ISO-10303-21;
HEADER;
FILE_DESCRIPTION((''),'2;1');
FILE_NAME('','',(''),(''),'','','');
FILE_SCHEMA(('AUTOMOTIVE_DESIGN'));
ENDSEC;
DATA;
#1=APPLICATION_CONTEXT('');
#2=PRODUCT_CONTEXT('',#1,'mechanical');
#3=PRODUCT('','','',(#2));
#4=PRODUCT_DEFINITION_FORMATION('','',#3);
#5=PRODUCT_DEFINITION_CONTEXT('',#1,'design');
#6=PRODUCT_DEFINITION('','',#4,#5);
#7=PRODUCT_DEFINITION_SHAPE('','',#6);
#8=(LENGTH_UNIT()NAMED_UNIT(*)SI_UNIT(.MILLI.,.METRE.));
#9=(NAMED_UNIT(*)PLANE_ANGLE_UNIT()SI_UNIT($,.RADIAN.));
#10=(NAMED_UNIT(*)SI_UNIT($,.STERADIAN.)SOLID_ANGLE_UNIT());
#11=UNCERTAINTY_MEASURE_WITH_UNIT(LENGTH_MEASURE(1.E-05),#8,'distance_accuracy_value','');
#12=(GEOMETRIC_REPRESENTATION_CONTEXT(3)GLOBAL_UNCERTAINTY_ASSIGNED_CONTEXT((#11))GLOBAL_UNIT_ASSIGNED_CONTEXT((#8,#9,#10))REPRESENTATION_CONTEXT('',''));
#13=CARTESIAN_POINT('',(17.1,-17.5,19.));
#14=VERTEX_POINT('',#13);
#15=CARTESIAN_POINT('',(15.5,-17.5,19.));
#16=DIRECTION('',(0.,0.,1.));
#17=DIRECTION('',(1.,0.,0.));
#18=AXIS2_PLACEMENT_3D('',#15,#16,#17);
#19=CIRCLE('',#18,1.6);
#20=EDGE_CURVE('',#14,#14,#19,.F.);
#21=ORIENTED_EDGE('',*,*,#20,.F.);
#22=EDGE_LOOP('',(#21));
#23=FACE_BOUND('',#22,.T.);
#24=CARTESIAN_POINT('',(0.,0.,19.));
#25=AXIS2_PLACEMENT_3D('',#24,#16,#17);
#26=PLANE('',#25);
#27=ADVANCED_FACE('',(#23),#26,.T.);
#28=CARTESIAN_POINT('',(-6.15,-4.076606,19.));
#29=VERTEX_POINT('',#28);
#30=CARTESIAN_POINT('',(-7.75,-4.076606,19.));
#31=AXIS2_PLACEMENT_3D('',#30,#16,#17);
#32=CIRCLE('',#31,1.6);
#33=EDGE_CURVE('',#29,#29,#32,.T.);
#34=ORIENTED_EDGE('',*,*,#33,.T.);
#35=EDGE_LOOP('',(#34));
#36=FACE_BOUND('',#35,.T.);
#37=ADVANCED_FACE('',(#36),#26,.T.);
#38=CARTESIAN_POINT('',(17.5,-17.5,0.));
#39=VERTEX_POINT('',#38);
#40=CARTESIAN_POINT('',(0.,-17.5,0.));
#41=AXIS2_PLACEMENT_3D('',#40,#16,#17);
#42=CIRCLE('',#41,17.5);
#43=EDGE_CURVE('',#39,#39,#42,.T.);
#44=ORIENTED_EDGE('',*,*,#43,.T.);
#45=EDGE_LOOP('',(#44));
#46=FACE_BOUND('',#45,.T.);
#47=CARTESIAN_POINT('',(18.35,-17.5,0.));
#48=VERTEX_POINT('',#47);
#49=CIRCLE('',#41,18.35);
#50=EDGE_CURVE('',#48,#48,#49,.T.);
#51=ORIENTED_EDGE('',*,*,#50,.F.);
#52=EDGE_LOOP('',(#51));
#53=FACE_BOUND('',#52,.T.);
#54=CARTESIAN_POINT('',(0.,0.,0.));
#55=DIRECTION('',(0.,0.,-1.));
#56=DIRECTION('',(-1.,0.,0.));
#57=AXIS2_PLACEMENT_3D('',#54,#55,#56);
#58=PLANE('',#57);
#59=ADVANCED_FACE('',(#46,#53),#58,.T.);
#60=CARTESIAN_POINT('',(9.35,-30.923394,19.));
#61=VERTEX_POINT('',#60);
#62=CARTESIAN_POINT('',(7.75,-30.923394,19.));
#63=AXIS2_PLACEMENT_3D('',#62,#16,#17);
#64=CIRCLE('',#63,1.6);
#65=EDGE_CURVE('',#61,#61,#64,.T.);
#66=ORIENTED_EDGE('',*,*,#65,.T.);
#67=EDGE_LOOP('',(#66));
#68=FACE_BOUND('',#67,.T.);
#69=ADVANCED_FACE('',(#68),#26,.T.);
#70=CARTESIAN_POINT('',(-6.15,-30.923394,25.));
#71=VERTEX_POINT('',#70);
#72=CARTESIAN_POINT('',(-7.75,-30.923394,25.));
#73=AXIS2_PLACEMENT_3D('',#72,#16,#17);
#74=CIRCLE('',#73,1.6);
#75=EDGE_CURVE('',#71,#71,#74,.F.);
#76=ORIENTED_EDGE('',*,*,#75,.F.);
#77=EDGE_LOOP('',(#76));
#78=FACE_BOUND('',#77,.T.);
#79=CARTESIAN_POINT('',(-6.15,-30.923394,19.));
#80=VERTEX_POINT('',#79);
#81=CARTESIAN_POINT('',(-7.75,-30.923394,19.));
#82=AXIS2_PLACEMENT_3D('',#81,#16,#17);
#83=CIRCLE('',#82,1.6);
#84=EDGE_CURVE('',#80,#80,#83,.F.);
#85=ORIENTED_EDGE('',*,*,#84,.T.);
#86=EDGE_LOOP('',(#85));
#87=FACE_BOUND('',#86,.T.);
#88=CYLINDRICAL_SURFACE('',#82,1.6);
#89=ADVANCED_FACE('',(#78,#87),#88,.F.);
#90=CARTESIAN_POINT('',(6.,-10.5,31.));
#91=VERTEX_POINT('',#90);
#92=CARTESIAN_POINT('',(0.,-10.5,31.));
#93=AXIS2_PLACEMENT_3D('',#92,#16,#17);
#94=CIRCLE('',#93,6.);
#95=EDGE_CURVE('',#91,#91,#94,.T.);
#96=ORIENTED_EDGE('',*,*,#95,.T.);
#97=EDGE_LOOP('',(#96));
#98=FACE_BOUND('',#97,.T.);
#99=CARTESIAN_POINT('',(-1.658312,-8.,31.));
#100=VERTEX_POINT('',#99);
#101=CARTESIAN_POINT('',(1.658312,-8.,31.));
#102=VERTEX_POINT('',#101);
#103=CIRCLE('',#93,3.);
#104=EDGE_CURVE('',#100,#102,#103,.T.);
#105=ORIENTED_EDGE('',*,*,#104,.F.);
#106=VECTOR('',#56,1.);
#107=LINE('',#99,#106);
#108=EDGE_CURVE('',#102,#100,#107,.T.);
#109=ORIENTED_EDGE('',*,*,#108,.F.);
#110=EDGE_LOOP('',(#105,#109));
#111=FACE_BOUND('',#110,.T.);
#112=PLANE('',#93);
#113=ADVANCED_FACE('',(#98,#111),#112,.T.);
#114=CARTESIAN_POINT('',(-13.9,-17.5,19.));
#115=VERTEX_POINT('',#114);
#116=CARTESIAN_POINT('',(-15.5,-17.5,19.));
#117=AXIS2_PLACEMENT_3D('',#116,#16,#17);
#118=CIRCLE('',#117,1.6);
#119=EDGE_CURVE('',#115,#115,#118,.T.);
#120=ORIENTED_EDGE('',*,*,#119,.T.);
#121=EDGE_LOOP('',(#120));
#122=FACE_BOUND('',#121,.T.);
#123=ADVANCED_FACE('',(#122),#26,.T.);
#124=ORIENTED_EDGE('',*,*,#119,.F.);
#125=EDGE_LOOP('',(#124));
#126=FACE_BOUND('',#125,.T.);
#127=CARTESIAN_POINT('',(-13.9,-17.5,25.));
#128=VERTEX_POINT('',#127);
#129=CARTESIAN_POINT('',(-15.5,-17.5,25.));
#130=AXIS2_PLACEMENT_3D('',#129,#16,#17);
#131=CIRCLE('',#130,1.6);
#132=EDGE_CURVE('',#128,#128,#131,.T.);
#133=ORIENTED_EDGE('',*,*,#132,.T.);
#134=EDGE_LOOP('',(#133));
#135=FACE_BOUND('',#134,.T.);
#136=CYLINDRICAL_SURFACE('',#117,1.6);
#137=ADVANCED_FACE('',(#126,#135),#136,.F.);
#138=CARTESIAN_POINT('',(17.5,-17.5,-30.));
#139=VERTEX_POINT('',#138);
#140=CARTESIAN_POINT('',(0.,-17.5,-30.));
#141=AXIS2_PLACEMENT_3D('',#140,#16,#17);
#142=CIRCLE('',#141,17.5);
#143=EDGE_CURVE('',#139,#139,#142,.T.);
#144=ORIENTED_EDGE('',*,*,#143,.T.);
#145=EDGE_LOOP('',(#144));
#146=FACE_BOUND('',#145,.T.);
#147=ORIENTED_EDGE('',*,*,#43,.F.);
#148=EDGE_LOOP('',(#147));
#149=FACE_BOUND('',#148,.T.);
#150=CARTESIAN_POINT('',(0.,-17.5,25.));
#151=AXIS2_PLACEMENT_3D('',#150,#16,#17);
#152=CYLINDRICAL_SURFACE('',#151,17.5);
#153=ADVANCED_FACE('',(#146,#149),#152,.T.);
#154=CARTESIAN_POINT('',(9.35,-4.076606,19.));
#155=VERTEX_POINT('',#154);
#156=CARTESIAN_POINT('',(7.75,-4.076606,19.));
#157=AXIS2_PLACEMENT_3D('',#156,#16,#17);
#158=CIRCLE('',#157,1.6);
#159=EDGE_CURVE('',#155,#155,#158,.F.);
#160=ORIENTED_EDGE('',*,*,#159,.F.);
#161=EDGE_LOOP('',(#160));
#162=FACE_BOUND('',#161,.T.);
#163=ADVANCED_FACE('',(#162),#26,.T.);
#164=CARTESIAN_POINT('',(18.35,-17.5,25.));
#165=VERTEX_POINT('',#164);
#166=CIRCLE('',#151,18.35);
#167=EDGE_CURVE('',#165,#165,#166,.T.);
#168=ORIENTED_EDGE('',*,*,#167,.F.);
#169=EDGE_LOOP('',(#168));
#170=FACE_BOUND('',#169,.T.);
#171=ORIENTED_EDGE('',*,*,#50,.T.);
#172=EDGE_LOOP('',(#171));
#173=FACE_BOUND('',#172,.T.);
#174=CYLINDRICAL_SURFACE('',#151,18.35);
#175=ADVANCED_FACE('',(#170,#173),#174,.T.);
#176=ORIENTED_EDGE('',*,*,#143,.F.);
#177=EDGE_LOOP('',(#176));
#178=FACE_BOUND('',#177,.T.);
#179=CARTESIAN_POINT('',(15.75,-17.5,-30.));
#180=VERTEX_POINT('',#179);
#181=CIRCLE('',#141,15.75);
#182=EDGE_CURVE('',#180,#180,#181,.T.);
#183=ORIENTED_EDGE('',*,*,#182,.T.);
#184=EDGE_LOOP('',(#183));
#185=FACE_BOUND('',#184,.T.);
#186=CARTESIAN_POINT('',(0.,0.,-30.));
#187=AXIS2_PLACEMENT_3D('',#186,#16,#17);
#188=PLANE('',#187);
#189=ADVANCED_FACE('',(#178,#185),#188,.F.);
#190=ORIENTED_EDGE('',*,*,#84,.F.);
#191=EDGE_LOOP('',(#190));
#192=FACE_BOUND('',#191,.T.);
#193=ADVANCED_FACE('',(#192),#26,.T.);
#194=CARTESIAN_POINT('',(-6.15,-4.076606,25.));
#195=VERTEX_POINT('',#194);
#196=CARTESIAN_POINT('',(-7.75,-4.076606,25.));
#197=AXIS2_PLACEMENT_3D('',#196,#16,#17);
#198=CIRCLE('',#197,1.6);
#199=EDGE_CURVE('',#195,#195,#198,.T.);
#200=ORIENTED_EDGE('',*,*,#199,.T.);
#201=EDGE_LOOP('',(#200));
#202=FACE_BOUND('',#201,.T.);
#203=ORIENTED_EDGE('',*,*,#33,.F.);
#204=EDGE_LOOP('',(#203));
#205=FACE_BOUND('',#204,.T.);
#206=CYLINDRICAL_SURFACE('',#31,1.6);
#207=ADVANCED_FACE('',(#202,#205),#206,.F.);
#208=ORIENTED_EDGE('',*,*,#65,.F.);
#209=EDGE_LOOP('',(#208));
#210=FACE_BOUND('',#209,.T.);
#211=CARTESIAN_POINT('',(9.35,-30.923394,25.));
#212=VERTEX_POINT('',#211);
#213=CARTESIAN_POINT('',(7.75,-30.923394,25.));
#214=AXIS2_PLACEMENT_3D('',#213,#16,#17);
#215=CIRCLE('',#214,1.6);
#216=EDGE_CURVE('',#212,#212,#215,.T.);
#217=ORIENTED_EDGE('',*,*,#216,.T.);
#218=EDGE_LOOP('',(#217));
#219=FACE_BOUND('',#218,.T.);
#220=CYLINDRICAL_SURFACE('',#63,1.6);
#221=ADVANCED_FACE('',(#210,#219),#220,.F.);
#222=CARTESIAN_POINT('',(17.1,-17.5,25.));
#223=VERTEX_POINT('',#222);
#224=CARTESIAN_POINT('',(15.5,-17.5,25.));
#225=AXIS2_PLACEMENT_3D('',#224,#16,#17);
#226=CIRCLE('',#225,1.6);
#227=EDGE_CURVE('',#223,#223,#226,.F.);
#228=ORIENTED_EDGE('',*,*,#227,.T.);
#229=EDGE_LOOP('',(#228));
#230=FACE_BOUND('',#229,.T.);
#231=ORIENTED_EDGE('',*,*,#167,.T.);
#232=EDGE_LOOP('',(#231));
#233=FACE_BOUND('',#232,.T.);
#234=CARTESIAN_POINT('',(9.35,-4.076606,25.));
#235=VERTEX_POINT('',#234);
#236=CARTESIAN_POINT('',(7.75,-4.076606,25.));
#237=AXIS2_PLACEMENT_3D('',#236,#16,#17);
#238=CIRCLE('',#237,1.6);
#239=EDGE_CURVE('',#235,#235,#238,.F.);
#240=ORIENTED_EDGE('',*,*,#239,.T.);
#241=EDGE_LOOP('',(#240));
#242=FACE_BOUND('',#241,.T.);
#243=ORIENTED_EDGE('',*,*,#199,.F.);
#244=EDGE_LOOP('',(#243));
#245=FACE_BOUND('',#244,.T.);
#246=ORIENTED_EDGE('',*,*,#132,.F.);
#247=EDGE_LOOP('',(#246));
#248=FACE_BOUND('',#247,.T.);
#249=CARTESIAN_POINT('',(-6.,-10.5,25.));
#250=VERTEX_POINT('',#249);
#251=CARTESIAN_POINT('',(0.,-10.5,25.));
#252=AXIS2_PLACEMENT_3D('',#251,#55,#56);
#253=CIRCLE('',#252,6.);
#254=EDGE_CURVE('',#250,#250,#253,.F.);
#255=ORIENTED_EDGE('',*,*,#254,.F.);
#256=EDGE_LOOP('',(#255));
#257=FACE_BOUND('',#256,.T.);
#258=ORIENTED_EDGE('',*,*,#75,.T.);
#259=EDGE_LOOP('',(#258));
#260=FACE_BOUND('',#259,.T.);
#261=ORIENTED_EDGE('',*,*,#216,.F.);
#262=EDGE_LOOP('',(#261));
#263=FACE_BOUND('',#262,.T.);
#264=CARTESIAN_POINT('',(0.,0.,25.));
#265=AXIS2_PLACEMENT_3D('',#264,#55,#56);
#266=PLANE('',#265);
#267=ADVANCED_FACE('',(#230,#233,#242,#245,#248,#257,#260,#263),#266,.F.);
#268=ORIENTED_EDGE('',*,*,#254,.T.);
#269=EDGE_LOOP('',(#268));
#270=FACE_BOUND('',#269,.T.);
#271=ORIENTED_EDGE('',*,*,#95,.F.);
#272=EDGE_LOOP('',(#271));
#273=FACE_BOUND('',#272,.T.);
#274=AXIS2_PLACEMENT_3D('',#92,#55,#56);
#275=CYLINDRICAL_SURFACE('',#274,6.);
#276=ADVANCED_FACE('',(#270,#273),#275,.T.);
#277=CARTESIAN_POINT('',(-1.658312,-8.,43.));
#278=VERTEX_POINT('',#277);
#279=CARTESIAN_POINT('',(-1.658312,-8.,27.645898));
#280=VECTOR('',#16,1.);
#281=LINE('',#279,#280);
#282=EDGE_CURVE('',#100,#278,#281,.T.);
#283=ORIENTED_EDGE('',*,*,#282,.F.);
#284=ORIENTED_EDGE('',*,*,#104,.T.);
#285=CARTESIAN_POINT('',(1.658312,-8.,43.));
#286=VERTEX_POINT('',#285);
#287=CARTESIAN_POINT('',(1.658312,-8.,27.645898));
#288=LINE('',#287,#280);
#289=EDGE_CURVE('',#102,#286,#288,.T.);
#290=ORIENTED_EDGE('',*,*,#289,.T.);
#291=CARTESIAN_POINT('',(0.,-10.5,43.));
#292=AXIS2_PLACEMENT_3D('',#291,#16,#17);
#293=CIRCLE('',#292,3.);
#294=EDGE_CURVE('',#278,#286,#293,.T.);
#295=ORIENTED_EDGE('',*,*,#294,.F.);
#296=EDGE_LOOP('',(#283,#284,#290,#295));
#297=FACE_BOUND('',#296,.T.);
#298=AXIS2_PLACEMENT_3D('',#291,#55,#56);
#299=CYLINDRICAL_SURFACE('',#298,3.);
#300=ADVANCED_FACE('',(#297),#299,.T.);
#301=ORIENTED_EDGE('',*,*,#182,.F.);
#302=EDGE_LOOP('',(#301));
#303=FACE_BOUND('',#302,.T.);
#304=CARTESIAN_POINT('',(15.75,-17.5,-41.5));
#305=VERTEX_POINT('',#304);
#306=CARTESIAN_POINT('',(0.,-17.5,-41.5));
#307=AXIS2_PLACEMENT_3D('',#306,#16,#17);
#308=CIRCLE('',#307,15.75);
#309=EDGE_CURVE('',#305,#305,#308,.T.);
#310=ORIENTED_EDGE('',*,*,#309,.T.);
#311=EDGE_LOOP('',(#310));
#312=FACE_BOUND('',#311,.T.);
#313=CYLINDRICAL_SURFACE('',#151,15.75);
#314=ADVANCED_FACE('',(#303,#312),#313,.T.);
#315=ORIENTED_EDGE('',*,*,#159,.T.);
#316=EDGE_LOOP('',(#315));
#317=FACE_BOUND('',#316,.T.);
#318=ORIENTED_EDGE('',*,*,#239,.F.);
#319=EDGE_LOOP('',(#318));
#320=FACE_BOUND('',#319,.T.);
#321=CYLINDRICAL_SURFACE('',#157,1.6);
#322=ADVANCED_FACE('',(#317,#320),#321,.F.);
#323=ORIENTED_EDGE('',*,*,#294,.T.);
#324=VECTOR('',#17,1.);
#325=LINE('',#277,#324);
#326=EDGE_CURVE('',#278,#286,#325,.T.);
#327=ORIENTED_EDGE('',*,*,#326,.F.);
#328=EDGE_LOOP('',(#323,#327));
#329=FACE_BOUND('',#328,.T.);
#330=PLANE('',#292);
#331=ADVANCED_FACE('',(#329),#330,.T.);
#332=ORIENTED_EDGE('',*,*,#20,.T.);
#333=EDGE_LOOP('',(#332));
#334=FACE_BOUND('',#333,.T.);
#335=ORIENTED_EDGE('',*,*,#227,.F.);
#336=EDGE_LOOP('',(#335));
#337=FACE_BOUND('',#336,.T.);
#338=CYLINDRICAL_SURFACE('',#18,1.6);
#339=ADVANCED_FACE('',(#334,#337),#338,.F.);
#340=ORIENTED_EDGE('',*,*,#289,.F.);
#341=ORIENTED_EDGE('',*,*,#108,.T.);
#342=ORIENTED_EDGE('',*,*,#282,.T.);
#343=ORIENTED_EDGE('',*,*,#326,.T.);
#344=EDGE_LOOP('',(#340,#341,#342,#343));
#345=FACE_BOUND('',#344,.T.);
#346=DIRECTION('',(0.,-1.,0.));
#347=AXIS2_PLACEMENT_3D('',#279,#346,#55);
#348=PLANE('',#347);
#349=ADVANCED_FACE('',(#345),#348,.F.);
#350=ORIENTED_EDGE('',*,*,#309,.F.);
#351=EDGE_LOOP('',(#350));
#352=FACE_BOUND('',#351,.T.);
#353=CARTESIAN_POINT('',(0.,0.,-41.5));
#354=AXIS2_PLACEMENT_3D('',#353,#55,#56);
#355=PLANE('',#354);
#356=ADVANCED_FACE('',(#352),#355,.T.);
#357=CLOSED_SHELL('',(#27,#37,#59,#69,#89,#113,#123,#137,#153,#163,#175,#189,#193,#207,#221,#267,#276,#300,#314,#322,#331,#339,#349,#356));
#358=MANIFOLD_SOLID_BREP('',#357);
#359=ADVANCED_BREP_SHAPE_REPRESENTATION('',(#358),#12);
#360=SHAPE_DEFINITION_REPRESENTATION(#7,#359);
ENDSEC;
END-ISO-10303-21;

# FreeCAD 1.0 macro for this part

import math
import FreeCAD as App
import Part
import Sketcher
from FreeCAD import Vector
Q = App.Units.Quantity

doc = App.newDocument("Part")
body = doc.addObject("PartDesign::Body", "Body")

sketch1 = body.newObject("Sketcher::SketchObject", "Sketch")
sketch1.AttachmentSupport = (doc.getObject("YZ_Plane"), [""])
sketch1.MapMode = "FlatFace"
sketch1.addGeometry([
    Part.LineSegment(Vector(-33.2, -30, 0), Vector(-33.2, -41.5, 0)),
    Part.LineSegment(Vector(-33.2, -41.5, 0), Vector(-17.5, -41.5, 0)),
    Part.LineSegment(Vector(-17.5, -41.5, 0), Vector(-17.5, 25, 0)),
    Part.LineSegment(Vector(-17.5, 25, 0), Vector(-35.9, 25, 0)),
    Part.LineSegment(Vector(-35.9, 25, 0), Vector(-35.9, 0, 0)),
    Part.LineSegment(Vector(-35.9, 0, 0), Vector(-35, 0, 0)),
    Part.LineSegment(Vector(-35, 0, 0), Vector(-35, -30, 0)),
    Part.LineSegment(Vector(-35, -30, 0), Vector(-33.2, -30, 0)),
], False)
sketch1.addGeometry(Part.LineSegment(Vector(-17.5, 25, 0), Vector(-17.5, -41.5, 0)), True)
sketch1.addConstraint([
    Sketcher.Constraint("Coincident", 0, 2, 1, 1),
    Sketcher.Constraint("Coincident", 1, 2, 2, 1),
    Sketcher.Constraint("Coincident", 2, 2, 3, 1),
    Sketcher.Constraint("Coincident", 3, 2, 4, 1),
    Sketcher.Constraint("Coincident", 4, 2, 5, 1),
    Sketcher.Constraint("Coincident", 5, 2, 6, 1),
    Sketcher.Constraint("Coincident", 6, 2, 7, 1),
    Sketcher.Constraint("Coincident", 7, 2, 0, 1),
    Sketcher.Constraint("Vertical", 0),
    Sketcher.Constraint("Horizontal", 1),
    Sketcher.Constraint("Vertical", 2),
    Sketcher.Constraint("Horizontal", 3),
    Sketcher.Constraint("Vertical", 4),
    Sketcher.Constraint("Horizontal", 5),
    Sketcher.Constraint("Vertical", 6),
    Sketcher.Constraint("Horizontal", 7),
    Sketcher.Constraint("Vertical", 8),
    Sketcher.Constraint("Coincident", 8, 1, 2, 2),
    Sketcher.Constraint("PointOnObject", 4, 2, -1),
    Sketcher.Constraint("Horizontal", 0, 2, 8, 2),
    Sketcher.Constraint("DistanceY", 4, 2, 4, 1, Q("25 mm")),
    Sketcher.Constraint("DistanceY", 6, 2, 6, 1, Q("30 mm")),
    Sketcher.Constraint("DistanceY", 0, 2, 0, 1, Q("11.5 mm")),
    Sketcher.Constraint("DistanceX", 5, 2, -1, 1, Q("35 mm")),
    Sketcher.Constraint("DistanceX", 1, 1, 1, 2, Q("15.75 mm")),
    Sketcher.Constraint("DistanceX", 3, 2, 3, 1, Q("18.35 mm")),
    Sketcher.Constraint("DistanceX", 5, 1, 5, 2, Q("0.85 mm")),
])
revolution = body.newObject("PartDesign::Revolution", "Revolution")
revolution.Profile = sketch1
revolution.ReferenceAxis = (sketch1, ["Axis0"])
revolution.Angle = 360

sketch2 = body.newObject("Sketcher::SketchObject", "Sketch001")
sketch2.AttachmentSupport = (doc.getObject("XY_Plane"), [""])
sketch2.MapMode = "FlatFace"
sketch2.AttachmentOffset = App.Placement(Vector(0, 0, 25), App.Rotation())
sketch2.addGeometry(Part.Circle(Vector(0, -10, 0), Vector(0, 0, 1), 6), False)
sketch2.addConstraint([
    Sketcher.Constraint("PointOnObject", 0, 3, -2),
    Sketcher.Constraint("Diameter", 0, Q("12 mm")),
    Sketcher.Constraint("DistanceY", 0, 3, -1, 1, Q("10.5 mm")),
])
pad1 = body.newObject("PartDesign::Pad", "Pad")
pad1.Profile = sketch2
pad1.Length = 6

sketch3 = body.newObject("Sketcher::SketchObject", "Sketch002")
sketch3.AttachmentSupport = (doc.getObject("XY_Plane"), [""])
sketch3.MapMode = "FlatFace"
sketch3.AttachmentOffset = App.Placement(Vector(0, 0, 31), App.Rotation())
sketch3.addGeometry(Part.Circle(Vector(0, -10.5, 0), Vector(0, 0, 1), 3), False)
sketch3.addConstraint([
    Sketcher.Constraint("PointOnObject", 0, 3, -2),
    Sketcher.Constraint("Diameter", 0, Q("6 mm")),
    Sketcher.Constraint("DistanceY", 0, 3, -1, 1, Q("10.5 mm")),
])
pad2 = body.newObject("PartDesign::Pad", "Pad001")
pad2.Profile = sketch3
pad2.Length = 12

sketch4 = body.newObject("Sketcher::SketchObject", "Sketch003")
sketch4.AttachmentSupport = (doc.getObject("XY_Plane"), [""])
sketch4.MapMode = "FlatFace"
sketch4.AttachmentOffset = App.Placement(Vector(0, 0, 25), App.Rotation())
sketch4.addGeometry([
    Part.Circle(Vector(-15.5, -17.5, 0), Vector(0, 0, 1), 1.6),
    Part.Circle(Vector(15.5, -17.5, 0), Vector(0, 0, 1), 1.6),
    Part.Circle(Vector(-7.8, -4.1, 0), Vector(0, 0, 1), 1.6),
    Part.Circle(Vector(7.8, -4.1, 0), Vector(0, 0, 1), 1.6),
    Part.Circle(Vector(7.8, -30.9, 0), Vector(0, 0, 1), 1.6),
    Part.Circle(Vector(-7.8, -30.9, 0), Vector(0, 0, 1), 1.6),
], False)
sketch4.addConstraint([
    Sketcher.Constraint("Equal", 0, 1),
    Sketcher.Constraint("Equal", 1, 2),
    Sketcher.Constraint("Equal", 2, 3),
    Sketcher.Constraint("Equal", 3, 4),
    Sketcher.Constraint("Equal", 4, 5),
    Sketcher.Constraint("Symmetric", 0, 3, 1, 3, -2),
    Sketcher.Constraint("Symmetric", 2, 3, 3, 3, -2),
    Sketcher.Constraint("Symmetric", 4, 3, 5, 3, -2),
    Sketcher.Constraint("Vertical", 3, 3, 4, 3),
    Sketcher.Constraint("Diameter", 0, Q("3.2 mm")),
    Sketcher.Constraint("DistanceX", 0, 3, 1, 3, Q("31 mm")),
    Sketcher.Constraint("DistanceY", 0, 3, -1, 1, Q("17.5 mm")),
    Sketcher.Constraint("DistanceX", 2, 3, 3, 3, Q("15.5 mm")),
    Sketcher.Constraint("DistanceY", 2, 3, -1, 1, Q("4.076606 mm")),
    Sketcher.Constraint("DistanceY", 4, 3, -1, 1, Q("30.923394 mm")),
])
pocket1 = body.newObject("PartDesign::Pocket", "Pocket")
pocket1.Profile = sketch4
pocket1.Length = 6

sketch5 = body.newObject("Sketcher::SketchObject", "Sketch004")
sketch5.AttachmentSupport = (doc.getObject("XY_Plane"), [""])
sketch5.MapMode = "FlatFace"
sketch5.AttachmentOffset = App.Placement(Vector(0, 0, 43), App.Rotation())
sketch5.addGeometry([
    Part.LineSegment(Vector(-1.7, -8, 0), Vector(1.7, -8, 0)),
    Part.ArcOfCircle(Part.Circle(Vector(0, -10.5, 0), Vector(0, 0, 1), 3), math.radians(56), math.radians(124)),
], False)
sketch5.addConstraint([
    Sketcher.Constraint("Coincident", 0, 1, 1, 2),
    Sketcher.Constraint("Coincident", 1, 1, 0, 2),
    Sketcher.Constraint("Horizontal", 0),
    Sketcher.Constraint("PointOnObject", 1, 3, -2),
    Sketcher.Constraint("Radius", 1, Q("3 mm")),
    Sketcher.Constraint("DistanceY", 0, 1, -1, 1, Q("8 mm")),
    Sketcher.Constraint("DistanceY", 1, 3, -1, 1, Q("10.5 mm")),
])
pocket2 = body.newObject("PartDesign::Pocket", "Pocket001")
pocket2.Profile = sketch5
pocket2.Type = "TwoLengths"
pocket2.Length = 94.606597
pocket2.Length2 = 12
pocket2.Reversed = True

doc.recompute()
